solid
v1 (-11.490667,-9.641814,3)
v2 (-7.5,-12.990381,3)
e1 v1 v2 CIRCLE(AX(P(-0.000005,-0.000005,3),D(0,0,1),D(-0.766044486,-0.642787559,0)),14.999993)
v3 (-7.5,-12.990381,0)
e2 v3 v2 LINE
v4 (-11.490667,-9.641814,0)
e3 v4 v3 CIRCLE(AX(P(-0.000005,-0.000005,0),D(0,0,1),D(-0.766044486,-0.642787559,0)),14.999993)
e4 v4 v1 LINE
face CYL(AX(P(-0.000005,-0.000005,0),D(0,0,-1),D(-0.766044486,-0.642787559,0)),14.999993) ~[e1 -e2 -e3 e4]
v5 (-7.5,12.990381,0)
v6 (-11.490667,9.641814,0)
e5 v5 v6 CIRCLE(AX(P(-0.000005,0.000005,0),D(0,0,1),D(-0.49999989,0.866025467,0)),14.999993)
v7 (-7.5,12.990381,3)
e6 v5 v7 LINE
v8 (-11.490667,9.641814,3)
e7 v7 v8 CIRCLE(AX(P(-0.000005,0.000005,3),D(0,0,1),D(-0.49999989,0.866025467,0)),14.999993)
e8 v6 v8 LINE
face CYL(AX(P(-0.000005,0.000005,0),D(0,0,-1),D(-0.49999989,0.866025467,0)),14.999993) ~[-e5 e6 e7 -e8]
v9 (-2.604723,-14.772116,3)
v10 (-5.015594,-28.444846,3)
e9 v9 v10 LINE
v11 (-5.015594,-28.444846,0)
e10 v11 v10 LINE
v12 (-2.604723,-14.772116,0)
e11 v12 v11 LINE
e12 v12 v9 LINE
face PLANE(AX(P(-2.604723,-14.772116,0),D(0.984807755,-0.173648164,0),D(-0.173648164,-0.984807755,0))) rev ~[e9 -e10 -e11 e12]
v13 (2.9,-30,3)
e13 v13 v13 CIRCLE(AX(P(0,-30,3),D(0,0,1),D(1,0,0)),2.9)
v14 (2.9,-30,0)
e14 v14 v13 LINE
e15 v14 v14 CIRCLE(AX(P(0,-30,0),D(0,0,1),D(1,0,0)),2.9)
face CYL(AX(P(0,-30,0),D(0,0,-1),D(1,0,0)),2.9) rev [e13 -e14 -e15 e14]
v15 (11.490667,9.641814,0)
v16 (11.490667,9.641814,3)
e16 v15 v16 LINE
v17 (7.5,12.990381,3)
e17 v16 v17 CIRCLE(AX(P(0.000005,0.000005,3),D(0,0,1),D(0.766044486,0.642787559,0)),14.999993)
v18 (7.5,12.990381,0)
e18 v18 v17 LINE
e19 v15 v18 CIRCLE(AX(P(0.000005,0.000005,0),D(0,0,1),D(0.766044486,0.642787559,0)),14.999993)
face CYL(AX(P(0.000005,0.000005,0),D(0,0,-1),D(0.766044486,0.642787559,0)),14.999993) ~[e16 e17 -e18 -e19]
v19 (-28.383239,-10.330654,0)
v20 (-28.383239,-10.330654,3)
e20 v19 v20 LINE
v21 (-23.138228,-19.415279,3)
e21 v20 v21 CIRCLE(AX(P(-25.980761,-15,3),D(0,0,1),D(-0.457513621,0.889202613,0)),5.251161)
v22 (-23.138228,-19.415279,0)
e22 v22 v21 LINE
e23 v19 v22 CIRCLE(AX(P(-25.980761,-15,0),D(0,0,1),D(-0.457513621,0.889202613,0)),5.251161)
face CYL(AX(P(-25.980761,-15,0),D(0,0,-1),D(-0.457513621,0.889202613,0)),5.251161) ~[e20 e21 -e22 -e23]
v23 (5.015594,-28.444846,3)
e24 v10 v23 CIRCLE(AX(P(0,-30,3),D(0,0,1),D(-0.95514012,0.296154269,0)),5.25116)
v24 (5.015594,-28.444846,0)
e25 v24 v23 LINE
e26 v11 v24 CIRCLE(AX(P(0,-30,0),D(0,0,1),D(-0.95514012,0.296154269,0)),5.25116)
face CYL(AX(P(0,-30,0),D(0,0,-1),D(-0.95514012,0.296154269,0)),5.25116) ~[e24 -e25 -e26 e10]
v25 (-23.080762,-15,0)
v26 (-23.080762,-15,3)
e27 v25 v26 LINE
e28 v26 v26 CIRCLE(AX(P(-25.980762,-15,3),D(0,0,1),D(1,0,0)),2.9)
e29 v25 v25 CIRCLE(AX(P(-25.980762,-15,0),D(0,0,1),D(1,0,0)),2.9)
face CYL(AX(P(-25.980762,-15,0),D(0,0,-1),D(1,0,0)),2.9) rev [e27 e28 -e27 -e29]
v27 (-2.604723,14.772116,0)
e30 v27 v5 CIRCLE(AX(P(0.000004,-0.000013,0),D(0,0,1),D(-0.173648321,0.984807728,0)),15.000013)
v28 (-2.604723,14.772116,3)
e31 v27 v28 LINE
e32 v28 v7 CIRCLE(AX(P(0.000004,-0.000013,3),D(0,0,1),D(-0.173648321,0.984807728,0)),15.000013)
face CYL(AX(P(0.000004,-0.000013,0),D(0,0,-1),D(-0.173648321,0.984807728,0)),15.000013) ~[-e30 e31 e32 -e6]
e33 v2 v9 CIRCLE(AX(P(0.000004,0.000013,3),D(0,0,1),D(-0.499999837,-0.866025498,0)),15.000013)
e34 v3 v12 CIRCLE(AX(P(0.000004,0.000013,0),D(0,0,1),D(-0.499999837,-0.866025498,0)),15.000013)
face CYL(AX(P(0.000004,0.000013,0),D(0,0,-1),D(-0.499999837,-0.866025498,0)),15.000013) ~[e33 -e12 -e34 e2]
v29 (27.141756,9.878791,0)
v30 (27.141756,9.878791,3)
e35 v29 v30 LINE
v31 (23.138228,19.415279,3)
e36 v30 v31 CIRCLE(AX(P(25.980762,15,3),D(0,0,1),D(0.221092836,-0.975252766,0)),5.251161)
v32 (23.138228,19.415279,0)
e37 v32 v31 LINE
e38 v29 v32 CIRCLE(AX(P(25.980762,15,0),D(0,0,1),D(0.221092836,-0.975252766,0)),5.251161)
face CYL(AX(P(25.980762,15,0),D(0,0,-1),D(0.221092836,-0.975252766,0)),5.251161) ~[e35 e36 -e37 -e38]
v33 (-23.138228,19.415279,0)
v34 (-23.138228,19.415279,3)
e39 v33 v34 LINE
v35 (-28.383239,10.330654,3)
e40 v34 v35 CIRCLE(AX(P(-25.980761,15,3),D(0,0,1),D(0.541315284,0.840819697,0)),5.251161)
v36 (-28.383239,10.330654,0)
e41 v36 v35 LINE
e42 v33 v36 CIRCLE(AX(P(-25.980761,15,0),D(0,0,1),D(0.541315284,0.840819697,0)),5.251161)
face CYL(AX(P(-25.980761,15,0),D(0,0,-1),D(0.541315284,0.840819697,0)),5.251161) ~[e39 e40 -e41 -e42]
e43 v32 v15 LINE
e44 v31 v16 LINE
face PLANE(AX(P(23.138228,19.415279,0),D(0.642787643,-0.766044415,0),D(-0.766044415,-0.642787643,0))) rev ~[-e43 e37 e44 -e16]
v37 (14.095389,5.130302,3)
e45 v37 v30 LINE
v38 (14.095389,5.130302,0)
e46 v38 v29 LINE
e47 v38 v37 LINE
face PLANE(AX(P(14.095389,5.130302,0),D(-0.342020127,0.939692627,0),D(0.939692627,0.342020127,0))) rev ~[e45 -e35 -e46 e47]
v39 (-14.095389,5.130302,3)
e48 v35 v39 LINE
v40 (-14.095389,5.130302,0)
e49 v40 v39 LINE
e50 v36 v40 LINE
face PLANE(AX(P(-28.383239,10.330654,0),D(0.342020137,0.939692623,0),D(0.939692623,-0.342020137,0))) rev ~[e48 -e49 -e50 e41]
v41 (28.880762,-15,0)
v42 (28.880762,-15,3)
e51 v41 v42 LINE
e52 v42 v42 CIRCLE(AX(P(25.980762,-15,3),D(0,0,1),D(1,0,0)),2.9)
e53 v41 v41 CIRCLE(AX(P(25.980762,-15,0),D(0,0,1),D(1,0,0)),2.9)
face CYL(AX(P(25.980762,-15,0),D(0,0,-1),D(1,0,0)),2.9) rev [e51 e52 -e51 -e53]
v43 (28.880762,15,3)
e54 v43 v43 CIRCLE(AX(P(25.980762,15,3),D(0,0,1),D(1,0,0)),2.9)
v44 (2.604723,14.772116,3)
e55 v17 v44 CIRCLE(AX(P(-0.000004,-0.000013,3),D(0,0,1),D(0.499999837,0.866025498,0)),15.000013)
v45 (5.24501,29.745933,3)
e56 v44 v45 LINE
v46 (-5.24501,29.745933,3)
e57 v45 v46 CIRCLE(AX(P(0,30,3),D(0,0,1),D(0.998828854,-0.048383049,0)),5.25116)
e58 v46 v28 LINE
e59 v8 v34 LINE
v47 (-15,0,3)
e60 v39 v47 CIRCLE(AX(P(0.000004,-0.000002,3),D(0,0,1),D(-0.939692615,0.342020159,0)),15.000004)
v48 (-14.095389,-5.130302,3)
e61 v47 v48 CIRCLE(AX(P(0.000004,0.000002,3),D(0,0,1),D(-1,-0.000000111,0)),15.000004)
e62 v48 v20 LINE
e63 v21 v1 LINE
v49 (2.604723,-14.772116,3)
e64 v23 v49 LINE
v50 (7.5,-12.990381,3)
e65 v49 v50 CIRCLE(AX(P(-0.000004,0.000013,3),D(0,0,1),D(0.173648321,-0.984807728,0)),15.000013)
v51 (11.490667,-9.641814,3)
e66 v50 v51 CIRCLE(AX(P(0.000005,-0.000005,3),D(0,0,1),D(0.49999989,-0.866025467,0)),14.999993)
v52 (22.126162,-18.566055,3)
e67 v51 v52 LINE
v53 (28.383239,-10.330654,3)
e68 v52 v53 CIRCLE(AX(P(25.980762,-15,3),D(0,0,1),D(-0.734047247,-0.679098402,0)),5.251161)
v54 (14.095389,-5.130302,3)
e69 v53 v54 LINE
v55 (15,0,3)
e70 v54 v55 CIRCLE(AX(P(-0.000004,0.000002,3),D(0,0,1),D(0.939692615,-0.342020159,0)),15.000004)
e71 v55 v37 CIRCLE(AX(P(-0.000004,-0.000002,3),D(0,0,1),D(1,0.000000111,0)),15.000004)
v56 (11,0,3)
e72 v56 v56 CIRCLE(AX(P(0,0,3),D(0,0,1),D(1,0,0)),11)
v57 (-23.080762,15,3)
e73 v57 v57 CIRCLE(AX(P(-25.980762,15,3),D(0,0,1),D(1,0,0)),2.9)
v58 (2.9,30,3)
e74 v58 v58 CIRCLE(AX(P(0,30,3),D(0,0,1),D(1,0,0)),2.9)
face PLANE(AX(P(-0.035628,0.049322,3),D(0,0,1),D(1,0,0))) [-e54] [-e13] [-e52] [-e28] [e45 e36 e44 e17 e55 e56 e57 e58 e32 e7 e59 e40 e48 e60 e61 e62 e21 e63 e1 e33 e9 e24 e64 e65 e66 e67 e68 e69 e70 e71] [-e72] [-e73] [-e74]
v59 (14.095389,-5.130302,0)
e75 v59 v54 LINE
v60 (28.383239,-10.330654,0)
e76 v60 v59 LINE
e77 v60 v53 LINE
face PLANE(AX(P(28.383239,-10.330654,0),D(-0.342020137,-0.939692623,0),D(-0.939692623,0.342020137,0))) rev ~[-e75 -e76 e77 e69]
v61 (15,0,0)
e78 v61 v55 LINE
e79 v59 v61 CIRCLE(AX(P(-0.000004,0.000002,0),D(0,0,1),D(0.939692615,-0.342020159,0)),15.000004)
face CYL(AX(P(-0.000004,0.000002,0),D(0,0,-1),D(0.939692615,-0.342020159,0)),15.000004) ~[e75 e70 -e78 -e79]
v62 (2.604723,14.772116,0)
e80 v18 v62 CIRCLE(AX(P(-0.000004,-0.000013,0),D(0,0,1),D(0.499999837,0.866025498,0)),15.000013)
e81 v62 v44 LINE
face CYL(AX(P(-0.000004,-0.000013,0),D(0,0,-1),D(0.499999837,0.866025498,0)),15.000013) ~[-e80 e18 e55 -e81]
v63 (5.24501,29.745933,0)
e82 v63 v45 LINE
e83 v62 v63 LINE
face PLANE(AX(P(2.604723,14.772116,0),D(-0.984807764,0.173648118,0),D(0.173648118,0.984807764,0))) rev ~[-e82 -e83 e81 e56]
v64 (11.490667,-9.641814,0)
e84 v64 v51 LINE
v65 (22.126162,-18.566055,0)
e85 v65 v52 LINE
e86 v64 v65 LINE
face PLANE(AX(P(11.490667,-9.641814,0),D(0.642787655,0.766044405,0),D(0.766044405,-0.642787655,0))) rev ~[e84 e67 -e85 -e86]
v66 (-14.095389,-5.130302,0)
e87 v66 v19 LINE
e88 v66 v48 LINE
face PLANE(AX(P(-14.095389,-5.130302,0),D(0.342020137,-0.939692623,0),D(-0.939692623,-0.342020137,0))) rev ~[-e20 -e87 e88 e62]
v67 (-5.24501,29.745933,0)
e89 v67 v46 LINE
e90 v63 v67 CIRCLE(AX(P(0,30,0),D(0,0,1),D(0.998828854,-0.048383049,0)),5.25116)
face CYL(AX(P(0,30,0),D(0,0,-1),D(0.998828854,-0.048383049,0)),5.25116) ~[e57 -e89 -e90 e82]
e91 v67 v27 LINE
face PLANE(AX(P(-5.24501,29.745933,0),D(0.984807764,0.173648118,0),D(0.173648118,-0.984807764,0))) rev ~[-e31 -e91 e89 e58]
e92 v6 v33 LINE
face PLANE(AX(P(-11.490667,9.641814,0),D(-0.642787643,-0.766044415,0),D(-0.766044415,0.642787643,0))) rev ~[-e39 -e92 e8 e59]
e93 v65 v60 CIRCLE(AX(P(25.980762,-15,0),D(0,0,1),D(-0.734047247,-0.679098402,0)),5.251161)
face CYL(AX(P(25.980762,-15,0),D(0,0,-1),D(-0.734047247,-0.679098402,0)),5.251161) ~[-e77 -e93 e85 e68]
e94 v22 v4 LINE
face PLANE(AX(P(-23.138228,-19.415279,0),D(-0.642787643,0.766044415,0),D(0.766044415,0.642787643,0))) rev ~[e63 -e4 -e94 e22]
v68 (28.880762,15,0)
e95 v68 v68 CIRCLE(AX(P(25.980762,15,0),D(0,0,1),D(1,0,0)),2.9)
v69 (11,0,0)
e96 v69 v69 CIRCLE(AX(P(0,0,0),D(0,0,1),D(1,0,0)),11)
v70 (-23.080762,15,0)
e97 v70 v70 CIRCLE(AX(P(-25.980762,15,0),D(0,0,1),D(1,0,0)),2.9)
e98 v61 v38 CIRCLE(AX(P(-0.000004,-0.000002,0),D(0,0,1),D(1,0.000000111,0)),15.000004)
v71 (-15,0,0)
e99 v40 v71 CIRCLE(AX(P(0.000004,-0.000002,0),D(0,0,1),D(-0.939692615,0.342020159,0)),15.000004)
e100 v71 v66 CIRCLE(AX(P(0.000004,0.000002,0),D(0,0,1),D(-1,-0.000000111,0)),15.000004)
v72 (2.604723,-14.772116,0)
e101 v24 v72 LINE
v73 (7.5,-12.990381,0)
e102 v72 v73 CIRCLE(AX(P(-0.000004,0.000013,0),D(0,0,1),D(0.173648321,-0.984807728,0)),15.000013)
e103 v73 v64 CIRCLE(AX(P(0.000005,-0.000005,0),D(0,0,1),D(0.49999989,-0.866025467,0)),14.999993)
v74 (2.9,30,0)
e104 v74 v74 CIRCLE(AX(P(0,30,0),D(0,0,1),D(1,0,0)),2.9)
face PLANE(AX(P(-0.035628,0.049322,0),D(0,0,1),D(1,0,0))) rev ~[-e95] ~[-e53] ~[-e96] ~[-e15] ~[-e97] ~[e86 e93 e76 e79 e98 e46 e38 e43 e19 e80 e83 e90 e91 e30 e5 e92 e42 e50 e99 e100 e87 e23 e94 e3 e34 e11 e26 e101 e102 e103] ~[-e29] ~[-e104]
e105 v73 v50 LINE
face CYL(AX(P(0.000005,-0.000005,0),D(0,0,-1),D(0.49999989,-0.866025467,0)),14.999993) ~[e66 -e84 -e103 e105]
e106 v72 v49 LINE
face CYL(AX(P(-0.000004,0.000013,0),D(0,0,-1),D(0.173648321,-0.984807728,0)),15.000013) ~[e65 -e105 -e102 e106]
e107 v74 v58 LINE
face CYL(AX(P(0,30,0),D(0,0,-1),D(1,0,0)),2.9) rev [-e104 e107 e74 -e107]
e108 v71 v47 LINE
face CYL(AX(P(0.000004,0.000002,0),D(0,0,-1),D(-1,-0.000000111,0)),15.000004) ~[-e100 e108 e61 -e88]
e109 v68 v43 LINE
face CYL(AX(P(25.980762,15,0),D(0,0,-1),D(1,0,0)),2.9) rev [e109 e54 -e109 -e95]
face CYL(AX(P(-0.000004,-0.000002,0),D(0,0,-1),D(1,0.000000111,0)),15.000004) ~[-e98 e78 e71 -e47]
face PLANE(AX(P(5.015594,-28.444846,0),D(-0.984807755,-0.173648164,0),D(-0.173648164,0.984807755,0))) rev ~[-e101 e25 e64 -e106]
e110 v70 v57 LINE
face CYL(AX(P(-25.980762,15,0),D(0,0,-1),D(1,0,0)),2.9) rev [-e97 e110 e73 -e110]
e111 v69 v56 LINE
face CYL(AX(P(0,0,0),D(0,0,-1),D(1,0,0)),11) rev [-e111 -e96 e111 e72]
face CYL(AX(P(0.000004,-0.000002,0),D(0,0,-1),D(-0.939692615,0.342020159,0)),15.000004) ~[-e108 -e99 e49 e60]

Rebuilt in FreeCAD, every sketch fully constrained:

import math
import FreeCAD as App
import Part
import Sketcher

V = App.Vector
Q = App.Units.Quantity

doc = App.newDocument("Part")
params = doc.addObject("Spreadsheet::Sheet", "Params")
for row, (alias, value) in enumerate([
    ("sketch1_diameter", "22 mm"),
    ("sketch1_diameter2", "5.8 mm"),
    ("pad1_length", "3 mm"),
], start=1):
    params.set(f"A{row}", alias)
    params.set(f"B{row}", "=" + value)
    params.setAlias(f"B{row}", alias)

body = doc.addObject("PartDesign::Body", "Body")

# Sketch on XY plane
sketch1 = body.newObject("Sketcher::SketchObject", "Sketch")
sketch1.AttachmentSupport = (doc.getObject("XY_Plane"), [""])
sketch1.MapMode = "FlatFace"
sketch1.addGeometry(Part.LineSegment(V(-5.24501, 29.745933, 0), V(-2.604723, 14.772116, 0)), False)
sketch1.addGeometry(Part.ArcOfCircle(Part.Circle(V(0.000004, -0.000013, 0), V(0, 0, 1), 15.000013), math.radians(100.000008), math.radians(119.999989)), False)
sketch1.addGeometry(Part.ArcOfCircle(Part.Circle(V(-0.000005, 0.000005, 0), V(0, 0, 1), 14.999993), math.radians(119.999993), math.radians(140.000004)), False)
sketch1.addGeometry(Part.LineSegment(V(-11.490667, 9.641814, 0), V(-23.138228, 19.415279, 0)), False)
sketch1.addGeometry(Part.ArcOfCircle(Part.Circle(V(-25.980761, 15, 0), V(0, 0, 1), 5.251161), math.radians(57.226779), math.radians(242.773218)), False)
sketch1.addGeometry(Part.LineSegment(V(-28.383239, 10.330654, 0), V(-14.095389, 5.130302, 0)), False)
sketch1.addGeometry(Part.ArcOfCircle(Part.Circle(V(0.000004, -0.000002, 0), V(0, 0, 1), 15.000004), math.radians(159.999999), math.radians(179.999994)), False)
sketch1.addGeometry(Part.ArcOfCircle(Part.Circle(V(0.000004, 0.000002, 0), V(0, 0, 1), 15.000004), math.radians(-179.999994), math.radians(-159.999999)), False)
sketch1.addGeometry(Part.LineSegment(V(-14.095389, -5.130302, 0), V(-28.383239, -10.330654, 0)), False)
sketch1.addGeometry(Part.ArcOfCircle(Part.Circle(V(-25.980761, -15, 0), V(0, 0, 1), 5.251161), math.radians(117.226782), math.radians(302.773221)), False)
sketch1.addGeometry(Part.LineSegment(V(-23.138228, -19.415279, 0), V(-11.490667, -9.641814, 0)), False)
sketch1.addGeometry(Part.ArcOfCircle(Part.Circle(V(-0.000005, -0.000005, 0), V(0, 0, 1), 14.999993), math.radians(-140.000004), math.radians(-119.999993)), False)
sketch1.addGeometry(Part.ArcOfCircle(Part.Circle(V(0.000004, 0.000013, 0), V(0, 0, 1), 15.000013), math.radians(-119.999989), math.radians(-100.000008)), False)
sketch1.addGeometry(Part.LineSegment(V(-2.604723, -14.772116, 0), V(-5.015594, -28.444846, 0)), False)
sketch1.addGeometry(Part.ArcOfCircle(Part.Circle(V(0, -30, 0), V(0, 0, 1), 5.25116), math.radians(162.773235), math.radians(377.226765)), False)
sketch1.addGeometry(Part.LineSegment(V(5.015594, -28.444846, 0), V(2.604723, -14.772116, 0)), False)
sketch1.addGeometry(Part.ArcOfCircle(Part.Circle(V(-0.000004, 0.000013, 0), V(0, 0, 1), 15.000013), math.radians(-79.999992), math.radians(-60.000011)), False)
sketch1.addGeometry(Part.ArcOfCircle(Part.Circle(V(0.000005, -0.000005, 0), V(0, 0, 1), 14.999993), math.radians(-60.000007), math.radians(-39.999996)), False)
sketch1.addGeometry(Part.LineSegment(V(11.490667, -9.641814, 0), V(22.126162, -18.566055, 0)), False)
sketch1.addGeometry(Part.ArcOfCircle(Part.Circle(V(25.980762, -15, 0), V(0, 0, 1), 5.251161), math.radians(-137.226771), math.radians(62.773226)), False)
sketch1.addGeometry(Part.LineSegment(V(28.383239, -10.330654, 0), V(14.095389, -5.130302, 0)), False)
sketch1.addGeometry(Part.ArcOfCircle(Part.Circle(V(-0.000004, 0.000002, 0), V(0, 0, 1), 15.000004), math.radians(-20.000001), math.radians(-0.000006)), False)
sketch1.addGeometry(Part.ArcOfCircle(Part.Circle(V(-0.000004, -0.000002, 0), V(0, 0, 1), 15.000004), math.radians(0.000006), math.radians(20.000001)), False)
sketch1.addGeometry(Part.LineSegment(V(14.095389, 5.130302, 0), V(27.141756, 9.878791, 0)), False)
sketch1.addGeometry(Part.ArcOfCircle(Part.Circle(V(25.980762, 15, 0), V(0, 0, 1), 5.251161), math.radians(-77.226771), math.radians(122.773227)), False)
sketch1.addGeometry(Part.LineSegment(V(23.138228, 19.415279, 0), V(11.490667, 9.641814, 0)), False)
sketch1.addGeometry(Part.ArcOfCircle(Part.Circle(V(0.000005, 0.000005, 0), V(0, 0, 1), 14.999993), math.radians(39.999996), math.radians(60.000007)), False)
sketch1.addGeometry(Part.ArcOfCircle(Part.Circle(V(-0.000004, -0.000013, 0), V(0, 0, 1), 15.000013), math.radians(60.000011), math.radians(79.999992)), False)
sketch1.addGeometry(Part.LineSegment(V(2.604723, 14.772116, 0), V(5.24501, 29.745933, 0)), False)
sketch1.addGeometry(Part.ArcOfCircle(Part.Circle(V(0, 30, 0), V(0, 0, 1), 5.25116), math.radians(-2.773227), math.radians(182.773227)), False)
sketch1.addGeometry(Part.Circle(V(0, -30, 0), V(0, 0, 1), 2.9), False)
sketch1.addGeometry(Part.Circle(V(-25.980762, -15, 0), V(0, 0, 1), 2.9), False)
sketch1.addGeometry(Part.Circle(V(25.980762, -15, 0), V(0, 0, 1), 2.9), False)
sketch1.addGeometry(Part.Circle(V(-25.980762, 15, 0), V(0, 0, 1), 2.9), False)
sketch1.addGeometry(Part.Circle(V(0, 0, 0), V(0, 0, 1), 11), False)
sketch1.addGeometry(Part.Circle(V(0, 30, 0), V(0, 0, 1), 2.9), False)
sketch1.addGeometry(Part.Circle(V(25.980762, 15, 0), V(0, 0, 1), 2.9), False)
sketch1.addConstraint(Sketcher.Constraint("Coincident", 0, 2, 1, 1))
sketch1.addConstraint(Sketcher.Constraint("Tangent", 1, 2, 2, 1))
sketch1.addConstraint(Sketcher.Constraint("Coincident", 2, 2, 3, 1))
sketch1.addConstraint(Sketcher.Constraint("Coincident", 3, 2, 4, 1))
sketch1.addConstraint(Sketcher.Constraint("Coincident", 4, 2, 5, 1))
sketch1.addConstraint(Sketcher.Constraint("Coincident", 5, 2, 6, 1))
sketch1.addConstraint(Sketcher.Constraint("Tangent", 6, 2, 7, 1))
sketch1.addConstraint(Sketcher.Constraint("Coincident", 7, 2, 8, 1))
sketch1.addConstraint(Sketcher.Constraint("Coincident", 8, 2, 9, 1))
sketch1.addConstraint(Sketcher.Constraint("Coincident", 9, 2, 10, 1))
sketch1.addConstraint(Sketcher.Constraint("Coincident", 10, 2, 11, 1))
sketch1.addConstraint(Sketcher.Constraint("Tangent", 11, 2, 12, 1))
sketch1.addConstraint(Sketcher.Constraint("Coincident", 12, 2, 13, 1))
sketch1.addConstraint(Sketcher.Constraint("Coincident", 13, 2, 14, 1))
sketch1.addConstraint(Sketcher.Constraint("Coincident", 14, 2, 15, 1))
sketch1.addConstraint(Sketcher.Constraint("Coincident", 15, 2, 16, 1))
sketch1.addConstraint(Sketcher.Constraint("Tangent", 16, 2, 17, 1))
sketch1.addConstraint(Sketcher.Constraint("Coincident", 17, 2, 18, 1))
sketch1.addConstraint(Sketcher.Constraint("Coincident", 18, 2, 19, 1))
sketch1.addConstraint(Sketcher.Constraint("Coincident", 19, 2, 20, 1))
sketch1.addConstraint(Sketcher.Constraint("Coincident", 20, 2, 21, 1))
sketch1.addConstraint(Sketcher.Constraint("Tangent", 21, 2, 22, 1))
sketch1.addConstraint(Sketcher.Constraint("Coincident", 22, 2, 23, 1))
sketch1.addConstraint(Sketcher.Constraint("Coincident", 23, 2, 24, 1))
sketch1.addConstraint(Sketcher.Constraint("Coincident", 24, 2, 25, 1))
sketch1.addConstraint(Sketcher.Constraint("Coincident", 25, 2, 26, 1))
sketch1.addConstraint(Sketcher.Constraint("Tangent", 26, 2, 27, 1))
sketch1.addConstraint(Sketcher.Constraint("Coincident", 27, 2, 28, 1))
sketch1.addConstraint(Sketcher.Constraint("Coincident", 28, 2, 29, 1))
sketch1.addConstraint(Sketcher.Constraint("Coincident", 29, 2, 0, 1))
sketch1.addConstraint(Sketcher.Constraint("Coincident", 2, 3, -1, 1))
sketch1.addConstraint(Sketcher.Constraint("Coincident", 6, 3, -1, 1))
sketch1.addConstraint(Sketcher.Constraint("Coincident", 11, 3, -1, 1))
sketch1.addConstraint(Sketcher.Constraint("Coincident", 17, 3, -1, 1))
sketch1.addConstraint(Sketcher.Constraint("Coincident", 21, 3, -1, 1))
sketch1.addConstraint(Sketcher.Constraint("Coincident", 26, 3, -1, 1))
sketch1.addConstraint(Sketcher.Constraint("Coincident", 34, 3, -1, 1))
sketch1.addConstraint(Sketcher.Constraint("Coincident", 27, 3, 1, 3))
sketch1.addConstraint(Sketcher.Constraint("Coincident", 30, 3, 14, 3))
sketch1.addConstraint(Sketcher.Constraint("Coincident", 31, 3, 9, 3))
sketch1.addConstraint(Sketcher.Constraint("Coincident", 32, 3, 19, 3))
sketch1.addConstraint(Sketcher.Constraint("Coincident", 33, 3, 4, 3))
sketch1.addConstraint(Sketcher.Constraint("Coincident", 35, 3, 29, 3))
sketch1.addConstraint(Sketcher.Constraint("Coincident", 36, 3, 24, 3))
sketch1.addConstraint(Sketcher.Constraint("Equal", 6, 7))
sketch1.addConstraint(Sketcher.Constraint("Equal", 4, 9))
sketch1.addConstraint(Sketcher.Constraint("Equal", 2, 11))
sketch1.addConstraint(Sketcher.Constraint("Equal", 1, 12))
sketch1.addConstraint(Sketcher.Constraint("Equal", 9, 14))
sketch1.addConstraint(Sketcher.Constraint("Equal", 12, 16))
sketch1.addConstraint(Sketcher.Constraint("Equal", 11, 17))
sketch1.addConstraint(Sketcher.Constraint("Equal", 14, 19))
sketch1.addConstraint(Sketcher.Constraint("Equal", 7, 21))
sketch1.addConstraint(Sketcher.Constraint("Equal", 21, 22))
sketch1.addConstraint(Sketcher.Constraint("Equal", 19, 24))
sketch1.addConstraint(Sketcher.Constraint("Equal", 17, 26))
sketch1.addConstraint(Sketcher.Constraint("Equal", 24, 29))
sketch1.addConstraint(Sketcher.Constraint("Equal", 30, 31))
sketch1.addConstraint(Sketcher.Constraint("Equal", 31, 32))
sketch1.addConstraint(Sketcher.Constraint("Equal", 32, 33))
sketch1.addConstraint(Sketcher.Constraint("Equal", 33, 35))
sketch1.addConstraint(Sketcher.Constraint("Equal", 35, 36))
sketch1.addConstraint(Sketcher.Constraint("Symmetric", 4, 3, 19, 3, -1, 1))
sketch1.addConstraint(Sketcher.Constraint("Symmetric", 9, 3, 24, 3, -1, 1))
sketch1.addConstraint(Sketcher.Constraint("Symmetric", 14, 3, 29, 3, -1, 1))
sketch1.addConstraint(Sketcher.Constraint("Symmetric", 9, 3, 19, 3, -2))
sketch1.addConstraint(Sketcher.Constraint("Symmetric", 13, 2, 14, 2, -2))
sketch1.addConstraint(Sketcher.Constraint("PointOnObject", 6, 2, -1))
sketch1.addConstraint(Sketcher.Constraint("PointOnObject", 21, 2, -1))
sketch1.addConstraint(Sketcher.Constraint("Parallel", 0, 15))
sketch1.addConstraint(Sketcher.Constraint("Parallel", 3, 18))
sketch1.addConstraint(Sketcher.Constraint("Parallel", 5, 20))
sketch1.addConstraint(Sketcher.Constraint("Parallel", 8, 23))
sketch1.addConstraint(Sketcher.Constraint("Parallel", 10, 25))
sketch1.addConstraint(Sketcher.Constraint("Parallel", 13, 28))
sketch1.addConstraint(Sketcher.Constraint("Horizontal", 12, 2, 15, 2))
sketch1.addConstraint(Sketcher.Constraint("Horizontal", 11, 2, 16, 2))
sketch1.addConstraint(Sketcher.Constraint("Horizontal", 10, 2, 17, 2))
sketch1.addConstraint(Sketcher.Constraint("Horizontal", 8, 2, 19, 2))
sketch1.addConstraint(Sketcher.Constraint("Horizontal", 7, 2, 20, 2))
sketch1.addConstraint(Sketcher.Constraint("Horizontal", 5, 2, 22, 2))
sketch1.addConstraint(Sketcher.Constraint("Horizontal", 3, 2, 24, 2))
sketch1.addConstraint(Sketcher.Constraint("Horizontal", 2, 2, 25, 2))
sketch1.addConstraint(Sketcher.Constraint("Horizontal", 1, 2, 26, 2))
sketch1.addConstraint(Sketcher.Constraint("Horizontal", 0, 2, 27, 2))
sketch1.addConstraint(Sketcher.Constraint("Vertical", 5, 2, 7, 2))
sketch1.addConstraint(Sketcher.Constraint("Vertical", 3, 2, 9, 2))
sketch1.addConstraint(Sketcher.Constraint("Vertical", 1, 2, 11, 2))
sketch1.addConstraint(Sketcher.Constraint("Vertical", 0, 2, 12, 2))
sketch1.addConstraint(Sketcher.Constraint("Equal", 0, 3))
sketch1.addConstraint(Sketcher.Constraint("Equal", 3, 5))
sketch1.addConstraint(Sketcher.Constraint("Equal", 15, 18))
sketch1.addConstraint(Sketcher.Constraint("Equal", 18, 23))
sketch1.addConstraint(Sketcher.Constraint("Diameter", 34, Q("22 mm")))
sketch1.addConstraint(Sketcher.Constraint("Diameter", 30, Q("5.8 mm")))
sketch1.addConstraint(Sketcher.Constraint("Angle", 0, Q("-80.000003 deg")))
sketch1.addConstraint(Sketcher.Constraint("Angle", 3, Q("139.999998 deg")))
sketch1.addConstraint(Sketcher.Constraint("Angle", 5, Q("-20 deg")))
sketch1.addConstraint(Sketcher.Constraint("DistanceY", -1, 1, 4, 3, Q("15 mm")))
sketch1.addConstraint(Sketcher.Constraint("DistanceY", 14, 3, -1, 1, Q("30 mm")))
sketch1.addConstraint(Sketcher.Constraint("DistanceX", 6, 2, -1, 1, Q("15 mm")))
sketch1.addConstraint(Sketcher.Constraint("DistanceX", 1, 2, -1, 1, Q("7.5 mm")))
sketch1.addConstraint(Sketcher.Constraint("Radius", 4, Q("5.251161 mm")))
sketch1.addConstraint(Sketcher.Constraint("DistanceY", 7, 2, -1, 1, Q("5.130302 mm")))
sketch1.setExpression("Constraints[93]", "Params.sketch1_diameter")
sketch1.setExpression("Constraints[94]", "Params.sketch1_diameter2")
pad1 = body.newObject("PartDesign::Pad", "Pad")
pad1.Profile = sketch1
pad1.setExpression("Length", "Params.pad1_length")

doc.recompute()
